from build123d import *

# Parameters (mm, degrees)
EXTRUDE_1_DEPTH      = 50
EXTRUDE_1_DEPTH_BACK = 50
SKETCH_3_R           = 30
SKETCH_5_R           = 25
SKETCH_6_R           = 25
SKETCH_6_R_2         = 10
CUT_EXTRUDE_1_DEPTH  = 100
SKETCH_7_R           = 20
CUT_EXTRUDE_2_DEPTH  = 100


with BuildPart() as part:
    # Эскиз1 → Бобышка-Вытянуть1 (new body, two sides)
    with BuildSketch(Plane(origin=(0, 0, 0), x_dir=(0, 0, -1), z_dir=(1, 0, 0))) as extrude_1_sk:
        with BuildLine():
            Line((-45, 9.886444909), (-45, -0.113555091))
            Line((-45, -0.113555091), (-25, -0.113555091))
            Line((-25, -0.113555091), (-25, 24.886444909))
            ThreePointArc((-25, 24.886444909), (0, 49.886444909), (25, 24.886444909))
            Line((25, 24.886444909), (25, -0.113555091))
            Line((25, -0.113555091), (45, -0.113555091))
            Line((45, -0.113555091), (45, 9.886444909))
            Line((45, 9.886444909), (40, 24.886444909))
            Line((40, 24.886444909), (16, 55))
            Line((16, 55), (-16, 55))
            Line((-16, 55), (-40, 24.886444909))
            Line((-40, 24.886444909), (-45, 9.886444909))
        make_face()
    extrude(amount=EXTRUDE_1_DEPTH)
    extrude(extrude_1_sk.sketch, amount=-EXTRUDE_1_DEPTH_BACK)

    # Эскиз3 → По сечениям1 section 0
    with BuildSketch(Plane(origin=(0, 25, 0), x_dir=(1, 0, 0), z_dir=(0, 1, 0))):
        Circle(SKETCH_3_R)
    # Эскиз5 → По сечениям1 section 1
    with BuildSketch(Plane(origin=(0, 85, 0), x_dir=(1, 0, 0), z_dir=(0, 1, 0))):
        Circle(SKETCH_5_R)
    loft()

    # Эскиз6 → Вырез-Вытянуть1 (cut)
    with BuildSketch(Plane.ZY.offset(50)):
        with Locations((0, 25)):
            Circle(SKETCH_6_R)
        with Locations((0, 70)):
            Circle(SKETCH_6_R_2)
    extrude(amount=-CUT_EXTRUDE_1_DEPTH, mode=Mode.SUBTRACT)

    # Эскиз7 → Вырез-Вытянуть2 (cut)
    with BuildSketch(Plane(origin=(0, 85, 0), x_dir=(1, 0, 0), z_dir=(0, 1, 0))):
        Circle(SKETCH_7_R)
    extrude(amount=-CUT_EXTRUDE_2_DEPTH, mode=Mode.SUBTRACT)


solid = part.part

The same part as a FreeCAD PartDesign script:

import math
import FreeCAD as App
import Part
import Sketcher
Q = App.Units.Quantity

doc = App.newDocument("Part")
body = doc.addObject("PartDesign::Body", "Body")

sketch1 = body.newObject("Sketcher::SketchObject", "Sketch")
sketch1.AttachmentSupport = (doc.getObject("YZ_Plane"), [""])
sketch1.MapMode = "FlatFace"
sketch1.addGeometry(Part.LineSegment(App.Vector(10, 45, 0), App.Vector(0, 45, 0)), False)
sketch1.addGeometry(Part.LineSegment(App.Vector(0, 45, 0), App.Vector(0, 25, 0)), False)
sketch1.addGeometry(Part.LineSegment(App.Vector(0, 25, 0), App.Vector(25, 25, 0)), False)
sketch1.addGeometry(Part.ArcOfCircle(Part.Circle(App.Vector(25, 0, 0), App.Vector(0, 0, 1), 25), math.radians(-90), math.radians(90)), False)
sketch1.addGeometry(Part.LineSegment(App.Vector(25, -25, 0), App.Vector(0, -25, 0)), False)
sketch1.addGeometry(Part.LineSegment(App.Vector(0, -25, 0), App.Vector(0, -45, 0)), False)
sketch1.addGeometry(Part.LineSegment(App.Vector(0, -45, 0), App.Vector(10, -45, 0)), False)
sketch1.addGeometry(Part.LineSegment(App.Vector(10, -45, 0), App.Vector(25, -40, 0)), False)
sketch1.addGeometry(Part.LineSegment(App.Vector(25, -40, 0), App.Vector(55, -16, 0)), False)
sketch1.addGeometry(Part.LineSegment(App.Vector(55, -16, 0), App.Vector(55, 16, 0)), False)
sketch1.addGeometry(Part.LineSegment(App.Vector(55, 16, 0), App.Vector(25, 40, 0)), False)
sketch1.addGeometry(Part.LineSegment(App.Vector(25, 40, 0), App.Vector(10, 45, 0)), False)
sketch1.addConstraint(Sketcher.Constraint("Coincident", 0, 2, 1, 1))
sketch1.addConstraint(Sketcher.Constraint("Coincident", 1, 2, 2, 1))
sketch1.addConstraint(Sketcher.Constraint("Tangent", 2, 2, 3, 2))
sketch1.addConstraint(Sketcher.Constraint("Tangent", 3, 1, 4, 1))
sketch1.addConstraint(Sketcher.Constraint("Coincident", 4, 2, 5, 1))
sketch1.addConstraint(Sketcher.Constraint("Coincident", 5, 2, 6, 1))
sketch1.addConstraint(Sketcher.Constraint("Coincident", 6, 2, 7, 1))
sketch1.addConstraint(Sketcher.Constraint("Coincident", 7, 2, 8, 1))
sketch1.addConstraint(Sketcher.Constraint("Coincident", 8, 2, 9, 1))
sketch1.addConstraint(Sketcher.Constraint("Coincident", 9, 2, 10, 1))
sketch1.addConstraint(Sketcher.Constraint("Coincident", 10, 2, 11, 1))
sketch1.addConstraint(Sketcher.Constraint("Coincident", 11, 2, 0, 1))
sketch1.addConstraint(Sketcher.Constraint("Horizontal", 0))
sketch1.addConstraint(Sketcher.Constraint("Vertical", 1))
sketch1.addConstraint(Sketcher.Constraint("Horizontal", 2))
sketch1.addConstraint(Sketcher.Constraint("Horizontal", 4))
sketch1.addConstraint(Sketcher.Constraint("Vertical", 5))
sketch1.addConstraint(Sketcher.Constraint("Horizontal", 6))
sketch1.addConstraint(Sketcher.Constraint("Vertical", 9))
sketch1.addConstraint(Sketcher.Constraint("Symmetric", 1, 2, 4, 2, -1))
sketch1.addConstraint(Sketcher.Constraint("Symmetric", 7, 2, 10, 2, -1))
sketch1.addConstraint(Sketcher.Constraint("Symmetric", 6, 2, 11, 2, -1))
sketch1.addConstraint(Sketcher.Constraint("Vertical", 3, 1, 7, 2))
sketch1.addConstraint(Sketcher.Constraint("Equal", 8, 10))
sketch1.addConstraint(Sketcher.Constraint("Radius", 3, Q("25 mm")))
sketch1.addConstraint(Sketcher.Constraint("DistanceX", 0, 2, 0, 1, Q("10 mm")))
sketch1.addConstraint(Sketcher.Constraint("DistanceX", 2, 1, 2, 2, Q("25 mm")))
sketch1.addConstraint(Sketcher.Constraint("DistanceY", 1, 2, 1, 1, Q("20 mm")))
sketch1.addConstraint(Sketcher.Constraint("DistanceY", 9, 1, 9, 2, Q("32 mm")))
sketch1.addConstraint(Sketcher.Constraint("DistanceY", 7, 2, -1, 1, Q("40 mm")))
sketch1.addConstraint(Sketcher.Constraint("DistanceX", -1, 1, 8, 2, Q("55 mm")))
sketch1.addConstraint(Sketcher.Constraint("Distance", 8, Q("38.507482 mm")))
pad1 = body.newObject("PartDesign::Pad", "Pad")
pad1.Profile = sketch1
pad1.Type = "TwoLengths"
pad1.Length = 50
pad1.Length2 = 50

sketch2 = body.newObject("Sketcher::SketchObject", "Sketch001")
sketch2.AttachmentSupport = (doc.getObject("XZ_Plane"), [""])
sketch2.MapMode = "FlatFace"
sketch2.AttachmentOffset = App.Placement(App.Vector(0, 0, -25), App.Rotation())
sketch2.addGeometry(Part.Circle(App.Vector(0, 0, 0), App.Vector(0, 0, 1), 30), False)
sketch2.addConstraint(Sketcher.Constraint("Coincident", 0, 3, -1, 1))
sketch2.addConstraint(Sketcher.Constraint("Diameter", 0, Q("60 mm")))

sketch3 = body.newObject("Sketcher::SketchObject", "Sketch002")
sketch3.AttachmentSupport = (doc.getObject("XZ_Plane"), [""])
sketch3.MapMode = "FlatFace"
sketch3.AttachmentOffset = App.Placement(App.Vector(0, 0, -85), App.Rotation())
sketch3.addGeometry(Part.Circle(App.Vector(0, 0, 0), App.Vector(0, 0, 1), 25), False)
sketch3.addConstraint(Sketcher.Constraint("Coincident", 0, 3, -1, 1))
sketch3.addConstraint(Sketcher.Constraint("Diameter", 0, Q("50 mm")))

additiveloft = body.newObject("PartDesign::AdditiveLoft", "AdditiveLoft")
additiveloft.Profile = sketch2
additiveloft.Sections = [sketch3]

sketch4 = body.newObject("Sketcher::SketchObject", "Sketch003")
sketch4.AttachmentSupport = (doc.getObject("YZ_Plane"), [""])
sketch4.MapMode = "FlatFace"
sketch4.AttachmentOffset = App.Placement(App.Vector(0, 0, -50), App.Rotation())
sketch4.addGeometry(Part.Circle(App.Vector(25, 0, 0), App.Vector(0, 0, 1), 25), False)
sketch4.addGeometry(Part.Circle(App.Vector(70, 0, 0), App.Vector(0, 0, 1), 10), False)
sketch4.addConstraint(Sketcher.Constraint("PointOnObject", 0, 3, -1))
sketch4.addConstraint(Sketcher.Constraint("PointOnObject", 1, 3, -1))
sketch4.addConstraint(Sketcher.Constraint("Diameter", 0, Q("50 mm")))
sketch4.addConstraint(Sketcher.Constraint("Diameter", 1, Q("20 mm")))
sketch4.addConstraint(Sketcher.Constraint("DistanceX", -1, 1, 0, 3, Q("25 mm")))
sketch4.addConstraint(Sketcher.Constraint("DistanceX", -1, 1, 1, 3, Q("70 mm")))
pocket1 = body.newObject("PartDesign::Pocket", "Pocket")
pocket1.Profile = sketch4
pocket1.Length = 100
pocket1.Reversed = True

sketch5 = body.newObject("Sketcher::SketchObject", "Sketch004")
sketch5.AttachmentSupport = (doc.getObject("XZ_Plane"), [""])
sketch5.MapMode = "FlatFace"
sketch5.AttachmentOffset = App.Placement(App.Vector(0, 0, -85), App.Rotation())
sketch5.addGeometry(Part.Circle(App.Vector(0, 0, 0), App.Vector(0, 0, 1), 20), False)
sketch5.addConstraint(Sketcher.Constraint("Coincident", 0, 3, -1, 1))
sketch5.addConstraint(Sketcher.Constraint("Diameter", 0, Q("40 mm")))
pocket2 = body.newObject("PartDesign::Pocket", "Pocket001")
pocket2.Profile = sketch5
pocket2.Length = 100
pocket2.Reversed = True

doc.recompute()
